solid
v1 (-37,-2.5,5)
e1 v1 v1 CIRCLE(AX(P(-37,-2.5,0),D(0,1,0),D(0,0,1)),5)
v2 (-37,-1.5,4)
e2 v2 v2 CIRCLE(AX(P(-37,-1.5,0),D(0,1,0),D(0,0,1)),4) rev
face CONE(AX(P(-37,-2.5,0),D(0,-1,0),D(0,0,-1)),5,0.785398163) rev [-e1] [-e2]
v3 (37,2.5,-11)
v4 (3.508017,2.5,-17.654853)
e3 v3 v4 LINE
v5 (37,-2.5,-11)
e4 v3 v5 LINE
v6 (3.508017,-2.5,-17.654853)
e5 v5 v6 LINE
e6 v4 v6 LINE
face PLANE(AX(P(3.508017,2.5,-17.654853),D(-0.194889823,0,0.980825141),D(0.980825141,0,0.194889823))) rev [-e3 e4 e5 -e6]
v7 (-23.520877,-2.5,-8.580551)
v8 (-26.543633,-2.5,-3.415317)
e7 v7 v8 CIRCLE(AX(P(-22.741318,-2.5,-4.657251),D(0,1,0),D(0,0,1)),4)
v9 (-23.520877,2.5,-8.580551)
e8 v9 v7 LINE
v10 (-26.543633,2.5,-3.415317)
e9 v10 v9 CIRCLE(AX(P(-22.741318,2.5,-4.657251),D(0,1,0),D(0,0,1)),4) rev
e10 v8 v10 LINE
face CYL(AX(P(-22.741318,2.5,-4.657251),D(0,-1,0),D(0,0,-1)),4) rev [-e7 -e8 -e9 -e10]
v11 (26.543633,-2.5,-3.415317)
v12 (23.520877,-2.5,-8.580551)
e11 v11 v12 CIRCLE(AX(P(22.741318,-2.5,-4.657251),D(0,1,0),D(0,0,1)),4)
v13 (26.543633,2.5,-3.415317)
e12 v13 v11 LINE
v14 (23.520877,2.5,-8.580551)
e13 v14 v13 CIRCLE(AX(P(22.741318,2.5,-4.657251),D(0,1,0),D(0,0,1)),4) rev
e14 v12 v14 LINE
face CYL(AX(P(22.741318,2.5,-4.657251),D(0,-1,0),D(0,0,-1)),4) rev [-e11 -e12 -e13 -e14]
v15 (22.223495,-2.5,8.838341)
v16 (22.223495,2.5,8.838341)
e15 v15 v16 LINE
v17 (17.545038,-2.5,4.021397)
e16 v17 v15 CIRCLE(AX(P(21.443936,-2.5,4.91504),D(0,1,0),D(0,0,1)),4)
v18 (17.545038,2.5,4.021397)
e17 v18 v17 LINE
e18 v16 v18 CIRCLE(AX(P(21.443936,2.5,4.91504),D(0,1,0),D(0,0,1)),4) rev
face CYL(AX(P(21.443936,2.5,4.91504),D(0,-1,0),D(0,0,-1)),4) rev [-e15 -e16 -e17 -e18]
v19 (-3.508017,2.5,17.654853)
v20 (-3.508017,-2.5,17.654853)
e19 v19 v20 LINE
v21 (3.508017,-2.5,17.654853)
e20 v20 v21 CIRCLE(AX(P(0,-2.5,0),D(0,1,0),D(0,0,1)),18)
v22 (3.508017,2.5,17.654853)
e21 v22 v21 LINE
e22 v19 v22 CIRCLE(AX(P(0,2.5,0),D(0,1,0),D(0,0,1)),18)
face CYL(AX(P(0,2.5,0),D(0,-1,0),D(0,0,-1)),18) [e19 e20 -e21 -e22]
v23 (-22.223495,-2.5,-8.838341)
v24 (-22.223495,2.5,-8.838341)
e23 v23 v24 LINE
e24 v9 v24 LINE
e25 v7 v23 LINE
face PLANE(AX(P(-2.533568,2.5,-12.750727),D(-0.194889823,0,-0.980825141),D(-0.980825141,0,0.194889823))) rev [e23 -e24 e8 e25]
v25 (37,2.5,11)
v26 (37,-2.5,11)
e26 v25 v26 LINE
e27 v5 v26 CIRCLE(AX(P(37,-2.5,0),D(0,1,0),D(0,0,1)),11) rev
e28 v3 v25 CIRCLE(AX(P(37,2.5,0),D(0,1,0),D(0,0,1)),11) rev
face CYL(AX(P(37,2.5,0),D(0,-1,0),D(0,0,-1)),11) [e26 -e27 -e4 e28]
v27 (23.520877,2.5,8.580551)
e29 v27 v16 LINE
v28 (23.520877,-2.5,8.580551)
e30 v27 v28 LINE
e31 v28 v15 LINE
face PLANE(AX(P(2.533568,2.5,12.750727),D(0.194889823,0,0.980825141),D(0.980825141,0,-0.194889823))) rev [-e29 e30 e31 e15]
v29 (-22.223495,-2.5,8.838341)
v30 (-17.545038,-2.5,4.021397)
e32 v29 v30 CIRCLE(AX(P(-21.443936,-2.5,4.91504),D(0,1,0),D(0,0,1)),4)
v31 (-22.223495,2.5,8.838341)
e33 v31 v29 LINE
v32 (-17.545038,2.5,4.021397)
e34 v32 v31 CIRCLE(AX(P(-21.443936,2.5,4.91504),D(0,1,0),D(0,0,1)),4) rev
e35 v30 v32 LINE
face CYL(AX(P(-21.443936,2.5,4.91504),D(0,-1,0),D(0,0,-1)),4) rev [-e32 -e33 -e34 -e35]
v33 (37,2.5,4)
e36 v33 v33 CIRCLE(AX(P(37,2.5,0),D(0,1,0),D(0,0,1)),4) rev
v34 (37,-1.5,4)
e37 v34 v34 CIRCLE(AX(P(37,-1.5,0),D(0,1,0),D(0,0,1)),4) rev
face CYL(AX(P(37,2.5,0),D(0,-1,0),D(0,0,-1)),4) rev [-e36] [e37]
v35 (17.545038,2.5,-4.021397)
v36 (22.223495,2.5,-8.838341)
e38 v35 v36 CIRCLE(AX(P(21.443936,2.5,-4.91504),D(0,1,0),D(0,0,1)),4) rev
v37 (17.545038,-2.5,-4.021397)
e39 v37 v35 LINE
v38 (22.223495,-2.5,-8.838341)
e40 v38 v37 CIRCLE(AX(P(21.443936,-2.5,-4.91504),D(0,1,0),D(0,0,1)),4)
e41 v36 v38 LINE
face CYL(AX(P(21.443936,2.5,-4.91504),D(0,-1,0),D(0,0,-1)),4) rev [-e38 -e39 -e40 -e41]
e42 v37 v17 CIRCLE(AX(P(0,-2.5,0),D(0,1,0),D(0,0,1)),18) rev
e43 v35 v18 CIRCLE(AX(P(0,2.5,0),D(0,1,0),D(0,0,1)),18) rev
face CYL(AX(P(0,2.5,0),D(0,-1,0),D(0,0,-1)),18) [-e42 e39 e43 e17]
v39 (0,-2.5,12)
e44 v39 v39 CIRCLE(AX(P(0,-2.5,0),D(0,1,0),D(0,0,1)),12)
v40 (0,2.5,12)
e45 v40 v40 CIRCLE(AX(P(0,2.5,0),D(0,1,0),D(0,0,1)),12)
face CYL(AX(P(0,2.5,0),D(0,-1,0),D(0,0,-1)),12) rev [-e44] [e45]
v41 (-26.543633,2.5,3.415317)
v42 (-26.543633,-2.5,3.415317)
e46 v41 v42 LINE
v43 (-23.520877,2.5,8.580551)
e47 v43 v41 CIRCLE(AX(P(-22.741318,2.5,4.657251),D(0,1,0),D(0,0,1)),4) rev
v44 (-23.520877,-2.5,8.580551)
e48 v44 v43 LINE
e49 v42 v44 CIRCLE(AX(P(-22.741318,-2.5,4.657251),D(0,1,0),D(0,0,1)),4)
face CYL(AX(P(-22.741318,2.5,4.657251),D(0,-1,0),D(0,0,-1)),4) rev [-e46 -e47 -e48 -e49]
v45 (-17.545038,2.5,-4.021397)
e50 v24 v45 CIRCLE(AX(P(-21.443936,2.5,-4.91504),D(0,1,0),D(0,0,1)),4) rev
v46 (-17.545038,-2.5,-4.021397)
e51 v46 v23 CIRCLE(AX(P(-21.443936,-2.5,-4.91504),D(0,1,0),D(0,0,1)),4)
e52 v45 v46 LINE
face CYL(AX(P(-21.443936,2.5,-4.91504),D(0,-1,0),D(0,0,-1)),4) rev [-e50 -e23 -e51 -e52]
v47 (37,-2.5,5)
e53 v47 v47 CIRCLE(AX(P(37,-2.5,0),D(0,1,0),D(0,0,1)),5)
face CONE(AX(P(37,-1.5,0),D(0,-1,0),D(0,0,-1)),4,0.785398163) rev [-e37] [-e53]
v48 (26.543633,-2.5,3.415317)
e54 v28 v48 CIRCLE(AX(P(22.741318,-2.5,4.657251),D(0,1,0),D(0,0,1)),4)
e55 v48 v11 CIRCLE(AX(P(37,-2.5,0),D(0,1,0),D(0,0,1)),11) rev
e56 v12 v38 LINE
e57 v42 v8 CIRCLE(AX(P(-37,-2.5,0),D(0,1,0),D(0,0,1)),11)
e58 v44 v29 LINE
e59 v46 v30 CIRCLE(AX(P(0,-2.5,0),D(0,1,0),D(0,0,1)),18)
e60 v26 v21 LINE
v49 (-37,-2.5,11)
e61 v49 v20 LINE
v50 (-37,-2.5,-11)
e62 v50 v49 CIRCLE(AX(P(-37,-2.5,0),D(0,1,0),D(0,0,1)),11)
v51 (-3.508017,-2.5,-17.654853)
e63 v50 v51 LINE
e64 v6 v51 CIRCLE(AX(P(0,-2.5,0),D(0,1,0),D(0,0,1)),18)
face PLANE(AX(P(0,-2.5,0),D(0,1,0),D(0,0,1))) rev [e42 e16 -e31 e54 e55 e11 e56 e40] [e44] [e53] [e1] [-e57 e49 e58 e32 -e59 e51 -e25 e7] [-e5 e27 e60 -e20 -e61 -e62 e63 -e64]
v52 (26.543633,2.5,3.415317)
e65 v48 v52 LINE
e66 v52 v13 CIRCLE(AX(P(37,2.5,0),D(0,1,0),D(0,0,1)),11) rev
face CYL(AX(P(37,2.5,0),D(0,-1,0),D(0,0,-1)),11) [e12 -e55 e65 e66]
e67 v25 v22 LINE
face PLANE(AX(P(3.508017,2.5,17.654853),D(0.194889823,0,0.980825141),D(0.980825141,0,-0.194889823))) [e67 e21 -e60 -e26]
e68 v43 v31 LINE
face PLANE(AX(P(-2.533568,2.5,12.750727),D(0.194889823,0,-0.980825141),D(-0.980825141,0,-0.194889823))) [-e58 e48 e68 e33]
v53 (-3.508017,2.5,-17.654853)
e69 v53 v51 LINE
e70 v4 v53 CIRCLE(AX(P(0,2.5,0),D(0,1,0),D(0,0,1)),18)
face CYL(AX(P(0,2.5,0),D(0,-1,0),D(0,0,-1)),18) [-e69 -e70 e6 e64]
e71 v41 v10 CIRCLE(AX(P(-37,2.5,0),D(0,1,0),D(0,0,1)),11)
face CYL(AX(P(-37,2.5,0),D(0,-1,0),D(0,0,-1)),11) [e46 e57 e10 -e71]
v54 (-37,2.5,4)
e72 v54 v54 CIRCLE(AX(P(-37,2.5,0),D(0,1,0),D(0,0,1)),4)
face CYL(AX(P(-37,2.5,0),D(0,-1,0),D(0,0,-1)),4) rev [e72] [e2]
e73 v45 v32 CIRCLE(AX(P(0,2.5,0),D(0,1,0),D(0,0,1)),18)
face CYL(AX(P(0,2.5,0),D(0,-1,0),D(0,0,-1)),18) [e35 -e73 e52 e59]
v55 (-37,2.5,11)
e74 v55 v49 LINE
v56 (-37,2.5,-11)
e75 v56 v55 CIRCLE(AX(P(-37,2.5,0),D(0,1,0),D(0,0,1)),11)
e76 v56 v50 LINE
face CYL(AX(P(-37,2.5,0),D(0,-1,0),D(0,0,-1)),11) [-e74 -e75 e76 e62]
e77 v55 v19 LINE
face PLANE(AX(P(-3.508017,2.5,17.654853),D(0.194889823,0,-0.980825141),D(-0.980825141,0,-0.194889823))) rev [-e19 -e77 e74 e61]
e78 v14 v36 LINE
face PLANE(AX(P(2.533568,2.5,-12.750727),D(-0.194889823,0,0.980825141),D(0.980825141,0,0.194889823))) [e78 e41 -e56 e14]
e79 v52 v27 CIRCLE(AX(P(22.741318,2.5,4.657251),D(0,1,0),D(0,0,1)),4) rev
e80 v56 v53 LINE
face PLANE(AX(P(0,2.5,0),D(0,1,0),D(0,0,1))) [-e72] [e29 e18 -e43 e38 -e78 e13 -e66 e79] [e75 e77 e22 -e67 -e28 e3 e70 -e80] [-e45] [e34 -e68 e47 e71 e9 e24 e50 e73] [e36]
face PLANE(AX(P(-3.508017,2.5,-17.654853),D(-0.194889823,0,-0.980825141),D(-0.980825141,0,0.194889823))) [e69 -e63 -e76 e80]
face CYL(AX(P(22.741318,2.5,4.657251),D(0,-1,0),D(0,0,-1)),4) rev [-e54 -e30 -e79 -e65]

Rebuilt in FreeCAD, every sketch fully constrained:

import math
import FreeCAD as App
import Part
import Sketcher

V = App.Vector
Q = App.Units.Quantity


def edges_at(feature, points):
    """Names of the edges that pass closest to the given points."""
    edges = feature.Shape.Edges
    near = lambda p: min(range(len(edges)), key=lambda i: edges[i].distToShape(Part.Vertex(*p))[0])
    return sorted({f"Edge{near(p) + 1}" for p in points})

doc = App.newDocument("Part")
body = doc.addObject("PartDesign::Body", "Body")

sketch1 = doc.addObject("Sketcher::SketchObject", "Sketch")
body.addObject(sketch1)
sketch1.AttachmentSupport = (doc.XZ_Plane, [""])
sketch1.MapMode = "FlatFace"
sketch1.addGeometry([
    Part.LineSegment(V(37, -11, 0), V(3.5, -17.7, 0)),
    Part.ArcOfCircle(Part.Circle(V(0, 0, 0), V(0, 0, 1), 18), math.radians(-101), math.radians(-79)),
    Part.LineSegment(V(-3.5, -17.7, 0), V(-37, -11, 0)),
    Part.ArcOfCircle(Part.Circle(V(-37, 0, 0), V(0, 0, 1), 11), math.radians(90), math.radians(270)),
    Part.LineSegment(V(-37, 11, 0), V(-3.5, 17.7, 0)),
    Part.ArcOfCircle(Part.Circle(V(0, 0, 0), V(0, 0, 1), 18), math.radians(79), math.radians(101)),
    Part.LineSegment(V(3.5, 17.7, 0), V(37, 11, 0)),
    Part.ArcOfCircle(Part.Circle(V(37, 0, 0), V(0, 0, 1), 11), math.radians(-90), math.radians(90)),
    Part.Circle(V(-37, 0, 0), V(0, 0, 1), 4),
    Part.LineSegment(V(-14.7, 10.3, 0), V(-29, 7.5, 0)),
    Part.ArcOfCircle(Part.Circle(V(-37, 0, 0), V(0, 0, 1), 11), math.radians(-43), math.radians(43)),
    Part.LineSegment(V(-29, -7.5, 0), V(-14.7, -10.3, 0)),
    Part.ArcOfCircle(Part.Circle(V(0, 0, 0), V(0, 0, 1), 18), math.radians(145), math.radians(215)),
    Part.Circle(V(0, 0, 0), V(0, 0, 1), 12),
    Part.ArcOfCircle(Part.Circle(V(0, 0, 0), V(0, 0, 1), 18), math.radians(-35), math.radians(35)),
    Part.LineSegment(V(14.7, -10.3, 0), V(29, -7.5, 0)),
    Part.ArcOfCircle(Part.Circle(V(37, 0, 0), V(0, 0, 1), 11), math.radians(137), math.radians(223)),
    Part.LineSegment(V(29, 7.5, 0), V(14.7, 10.3, 0)),
    Part.Circle(V(37, 0, 0), V(0, 0, 1), 4),
], False)
sketch1.addConstraint([
    Sketcher.Constraint("Tangent", 0, 2, 1, 2),
    Sketcher.Constraint("Tangent", 1, 1, 2, 1),
    Sketcher.Constraint("Coincident", 2, 2, 3, 2),
    Sketcher.Constraint("Coincident", 3, 1, 4, 1),
    Sketcher.Constraint("Tangent", 4, 2, 5, 2),
    Sketcher.Constraint("Tangent", 5, 1, 6, 1),
    Sketcher.Constraint("Coincident", 6, 2, 7, 2),
    Sketcher.Constraint("Coincident", 7, 1, 0, 1),
    Sketcher.Constraint("Coincident", 9, 2, 10, 2),
    Sketcher.Constraint("Coincident", 10, 1, 11, 1),
    Sketcher.Constraint("Coincident", 11, 2, 12, 2),
    Sketcher.Constraint("Coincident", 12, 1, 9, 1),
    Sketcher.Constraint("Coincident", 14, 1, 15, 1),
    Sketcher.Constraint("Coincident", 15, 2, 16, 2),
    Sketcher.Constraint("Coincident", 16, 1, 17, 1),
    Sketcher.Constraint("Coincident", 17, 2, 14, 2),
    Sketcher.Constraint("Coincident", 1, 3, -1, 1),
    Sketcher.Constraint("Coincident", 5, 3, -1, 1),
    Sketcher.Constraint("Coincident", 12, 3, -1, 1),
    Sketcher.Constraint("Coincident", 13, 3, -1, 1),
    Sketcher.Constraint("Coincident", 14, 3, -1, 1),
    Sketcher.Constraint("Coincident", 8, 3, 3, 3),
    Sketcher.Constraint("Coincident", 10, 3, 3, 3),
    Sketcher.Constraint("Coincident", 16, 3, 7, 3),
    Sketcher.Constraint("Coincident", 18, 3, 7, 3),
    Sketcher.Constraint("Equal", 1, 5),
    Sketcher.Constraint("Equal", 3, 7),
    Sketcher.Constraint("Equal", 7, 10),
    Sketcher.Constraint("Equal", 5, 12),
    Sketcher.Constraint("Equal", 12, 14),
    Sketcher.Constraint("Equal", 10, 16),
    Sketcher.Constraint("Equal", 8, 18),
    Sketcher.Constraint("Symmetric", 3, 3, 7, 3, -1, 1),
    Sketcher.Constraint("Symmetric", 3, 1, 6, 2, -2),
    Sketcher.Constraint("Parallel", 0, 4),
    Sketcher.Constraint("Parallel", 2, 6),
    Sketcher.Constraint("Parallel", 4, 9),
    Sketcher.Constraint("Parallel", 6, 11),
    Sketcher.Constraint("Parallel", 9, 15),
    Sketcher.Constraint("Parallel", 11, 17),
    Sketcher.Constraint("Horizontal", 11, 2, 14, 1),
    Sketcher.Constraint("Horizontal", 9, 2, 16, 1),
    Sketcher.Constraint("Vertical", 10, 3, 2, 2),
    Sketcher.Constraint("Vertical", 9, 2, 10, 1),
    Sketcher.Constraint("Diameter", 8, Q("8 mm")),
    Sketcher.Constraint("Diameter", 13, Q("24 mm")),
    Sketcher.Constraint("Radius", 1, Q("18 mm")),
    Sketcher.Constraint("Radius", 3, Q("11 mm")),
    Sketcher.Constraint("DistanceX", 3, 3, -1, 1, Q("37 mm")),
    Sketcher.Constraint("DistanceY", -1, 1, 9, 2, Q("7.50096 mm")),
])
pad1 = doc.addObject("PartDesign::Pad", "Pad")
body.addObject(pad1)
pad1.Profile = sketch1
pad1.Length = 5
pad1.Midplane = True
doc.recompute()

fillet = doc.addObject("PartDesign::Fillet", "Fillet")
body.addObject(fillet)
fillet.Base = (pad1, edges_at(pad1, [
    (14.745, 0, 10.324),
    (28.954, 0, 7.501),
    (28.954, 0, -7.501),
    (14.745, 0, -10.324),
    (-14.745, 0, 10.324),
    (-14.745, 0, -10.324),
    (-28.954, 0, -7.501),
    (-28.954, 0, 7.501),
]))
fillet.Radius = 4
doc.recompute()

chamfer = doc.addObject("PartDesign::Chamfer", "Chamfer")
body.addObject(chamfer)
chamfer.Base = (fillet, edges_at(fillet, [(-41, -2.5, 0), (33, -2.5, 0)]))
chamfer.Size = 1

doc.recompute()
